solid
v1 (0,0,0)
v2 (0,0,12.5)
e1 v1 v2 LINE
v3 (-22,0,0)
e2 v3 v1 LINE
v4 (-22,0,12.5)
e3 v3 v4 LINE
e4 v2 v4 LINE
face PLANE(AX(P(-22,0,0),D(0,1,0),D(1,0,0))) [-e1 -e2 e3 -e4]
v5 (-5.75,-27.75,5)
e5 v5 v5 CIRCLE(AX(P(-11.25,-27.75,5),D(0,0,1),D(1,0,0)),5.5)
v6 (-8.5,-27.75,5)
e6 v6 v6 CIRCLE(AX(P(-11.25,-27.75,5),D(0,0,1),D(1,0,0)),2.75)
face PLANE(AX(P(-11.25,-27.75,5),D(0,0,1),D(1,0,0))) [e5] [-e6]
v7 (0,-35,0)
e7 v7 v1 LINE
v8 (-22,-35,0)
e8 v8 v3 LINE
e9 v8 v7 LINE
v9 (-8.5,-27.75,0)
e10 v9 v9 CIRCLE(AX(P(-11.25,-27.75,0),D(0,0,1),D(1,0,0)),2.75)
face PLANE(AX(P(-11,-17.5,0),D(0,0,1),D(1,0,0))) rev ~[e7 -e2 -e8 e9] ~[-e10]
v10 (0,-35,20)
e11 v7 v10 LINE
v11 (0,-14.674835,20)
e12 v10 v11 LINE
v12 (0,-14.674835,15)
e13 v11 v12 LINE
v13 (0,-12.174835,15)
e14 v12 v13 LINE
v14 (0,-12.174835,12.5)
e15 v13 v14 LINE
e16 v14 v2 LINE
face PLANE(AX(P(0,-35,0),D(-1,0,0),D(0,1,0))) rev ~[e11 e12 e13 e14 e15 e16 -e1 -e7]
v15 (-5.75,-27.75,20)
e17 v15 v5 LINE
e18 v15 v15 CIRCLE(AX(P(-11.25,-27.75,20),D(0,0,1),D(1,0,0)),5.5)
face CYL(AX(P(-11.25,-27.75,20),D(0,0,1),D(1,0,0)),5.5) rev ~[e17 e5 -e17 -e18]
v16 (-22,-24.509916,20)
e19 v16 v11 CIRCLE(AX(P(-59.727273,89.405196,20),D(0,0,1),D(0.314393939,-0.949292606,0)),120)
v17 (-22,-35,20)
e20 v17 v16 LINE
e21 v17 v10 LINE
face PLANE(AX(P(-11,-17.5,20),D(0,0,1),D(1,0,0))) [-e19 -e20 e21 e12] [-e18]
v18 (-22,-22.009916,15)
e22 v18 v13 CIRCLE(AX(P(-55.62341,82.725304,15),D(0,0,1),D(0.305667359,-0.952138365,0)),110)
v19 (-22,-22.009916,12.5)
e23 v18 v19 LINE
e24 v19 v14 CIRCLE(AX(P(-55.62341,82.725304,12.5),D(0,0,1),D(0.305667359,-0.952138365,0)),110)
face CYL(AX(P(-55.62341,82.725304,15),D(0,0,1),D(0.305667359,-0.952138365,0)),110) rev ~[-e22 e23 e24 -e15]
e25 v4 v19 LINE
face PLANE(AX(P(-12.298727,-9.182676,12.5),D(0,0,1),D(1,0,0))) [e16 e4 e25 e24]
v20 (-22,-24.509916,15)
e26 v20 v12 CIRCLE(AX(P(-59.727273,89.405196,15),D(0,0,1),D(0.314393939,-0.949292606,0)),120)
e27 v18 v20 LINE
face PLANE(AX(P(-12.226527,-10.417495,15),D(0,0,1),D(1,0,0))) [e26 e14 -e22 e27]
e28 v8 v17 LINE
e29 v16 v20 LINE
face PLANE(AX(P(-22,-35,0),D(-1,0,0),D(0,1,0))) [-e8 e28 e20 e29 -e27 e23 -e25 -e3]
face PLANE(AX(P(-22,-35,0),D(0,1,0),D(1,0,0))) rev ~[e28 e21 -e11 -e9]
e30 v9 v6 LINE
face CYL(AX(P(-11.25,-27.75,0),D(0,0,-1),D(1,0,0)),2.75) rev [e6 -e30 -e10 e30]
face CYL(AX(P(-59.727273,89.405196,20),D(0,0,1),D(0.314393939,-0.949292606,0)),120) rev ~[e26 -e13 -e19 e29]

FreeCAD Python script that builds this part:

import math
import FreeCAD as App
import Part
import Sketcher
from FreeCAD import Vector
Q = App.Units.Quantity


def add_polygon(sketch, points):
    """Adds a closed chain of lines whose ends are joined by coincident constraints."""
    first, n = sketch.GeometryCount, len(points)
    for a, b in zip(points, points[1:] + points[:1]):
        sketch.addGeometry(Part.LineSegment(App.Vector(*a, 0), App.Vector(*b, 0)), False)
    for i in range(n):
        sketch.addConstraint(Sketcher.Constraint("Coincident", first + i, 2, first + (i + 1) % n, 1))

doc = App.newDocument("Part")
body = doc.addObject("PartDesign::Body", "Body")

# Sketch on XY plane
sketch1 = doc.addObject("Sketcher::SketchObject", "Sketch")
body.addObject(sketch1)
sketch1.AttachmentSupport = (doc.XY_Plane, [""])
sketch1.MapMode = "FlatFace"
add_polygon(sketch1, [(-22, 0), (-22, -35), (0, -35), (0, 0)])  # lines 0-3
sketch1.addGeometry(Part.Circle(Vector(-11.2, -27.8, 0), Vector(0, 0, 1), 2.8), False)  # 4
sketch1.addConstraint([
    Sketcher.Constraint("Vertical", 0),
    Sketcher.Constraint("Horizontal", 1),
    Sketcher.Constraint("Vertical", 2),
    Sketcher.Constraint("Horizontal", 3),
    Sketcher.Constraint("Coincident", 2, 2, -1, 1),
    Sketcher.Constraint("Diameter", 4, Q("5.5 mm")),
    Sketcher.Constraint("DistanceX", 1, 1, 1, 2, Q("22 mm")),
    Sketcher.Constraint("DistanceY", 0, 2, 0, 1, Q("35 mm")),
    Sketcher.Constraint("DistanceX", 4, 3, -1, 1, Q("11.25 mm")),
    Sketcher.Constraint("DistanceY", 4, 3, -1, 1, Q("27.75 mm")),
])
pad1 = doc.addObject("PartDesign::Pad", "Pad")
body.addObject(pad1)
pad1.Profile = sketch1
pad1.Length = 20

# Sketch on XY plane
sketch2 = doc.addObject("Sketcher::SketchObject", "Sketch001")
body.addObject(sketch2)
sketch2.AttachmentSupport = (doc.XY_Plane, [""])
sketch2.MapMode = "FlatFace"
sketch2.AttachmentOffset = App.Placement(Vector(0, 0, 20), App.Rotation())
sketch2.addGeometry([
    Part.Circle(Vector(-11.2, -27.8, 0), Vector(0, 0, 1), 5.5),
    Part.Circle(Vector(-11.2, -27.8, 0), Vector(0, 0, 1), 2.8),
], False)
sketch2.addConstraint([
    Sketcher.Constraint("Coincident", 1, 3, 0, 3),
    Sketcher.Constraint("Diameter", 0, Q("11 mm")),
    Sketcher.Constraint("Diameter", 1, Q("5.5 mm")),
    Sketcher.Constraint("DistanceX", 0, 3, -1, 1, Q("11.25 mm")),
    Sketcher.Constraint("DistanceY", 0, 3, -1, 1, Q("27.75 mm")),
])
pocket1 = doc.addObject("PartDesign::Pocket", "Pocket")
body.addObject(pocket1)
pocket1.Profile = sketch2
pocket1.Length = 15

# Sketch on XY plane
sketch3 = doc.addObject("Sketcher::SketchObject", "Sketch002")
body.addObject(sketch3)
sketch3.AttachmentSupport = (doc.XY_Plane, [""])
sketch3.MapMode = "FlatFace"
sketch3.AttachmentOffset = App.Placement(Vector(0, 0, 20), App.Rotation())
sketch3.addGeometry([
    Part.LineSegment(Vector(0, 0, 0), Vector(-22, 0, 0)),
    Part.LineSegment(Vector(-22, 0, 0), Vector(-22, -25, 0)),
    Part.ArcOfCircle(Part.Circle(Vector(-60, 89, 0), Vector(0, 0, 1), 120), math.radians(-71.68), math.radians(-60.15)),
    Part.LineSegment(Vector(0, -15, 0), Vector(0, 0, 0)),
], False)
sketch3.addConstraint([
    Sketcher.Constraint("Coincident", 0, 2, 1, 1),
    Sketcher.Constraint("Coincident", 1, 2, 2, 1),
    Sketcher.Constraint("Coincident", 2, 2, 3, 1),
    Sketcher.Constraint("Coincident", 3, 2, 0, 1),
    Sketcher.Constraint("Horizontal", 0),
    Sketcher.Constraint("Vertical", 1),
    Sketcher.Constraint("Vertical", 3),
    Sketcher.Constraint("Coincident", 3, 2, -1, 1),
    Sketcher.Constraint("Radius", 2, Q("120 mm")),
    Sketcher.Constraint("DistanceX", 0, 2, 0, 1, Q("22 mm")),
    Sketcher.Constraint("DistanceY", 1, 2, 1, 1, Q("24.509916 mm")),
    Sketcher.Constraint("DistanceY", 3, 1, 3, 2, Q("14.674835 mm")),
])
pocket2 = doc.addObject("PartDesign::Pocket", "Pocket001")
body.addObject(pocket2)
pocket2.Profile = sketch3
pocket2.Length = 5

# Sketch on XY plane
sketch4 = doc.addObject("Sketcher::SketchObject", "Sketch003")
body.addObject(sketch4)
sketch4.AttachmentSupport = (doc.XY_Plane, [""])
sketch4.MapMode = "FlatFace"
sketch4.AttachmentOffset = App.Placement(Vector(0, 0, 15), App.Rotation())
sketch4.addGeometry([
    Part.LineSegment(Vector(0, 0, 0), Vector(-22, 0, 0)),
    Part.LineSegment(Vector(-22, 0, 0), Vector(-22, -22, 0)),
    Part.ArcOfCircle(Part.Circle(Vector(-56, 83, 0), Vector(0, 0, 1), 110), math.radians(-72.2), math.radians(-59.62)),
    Part.LineSegment(Vector(0, -12, 0), Vector(0, 0, 0)),
], False)
sketch4.addConstraint([
    Sketcher.Constraint("Coincident", 0, 2, 1, 1),
    Sketcher.Constraint("Coincident", 1, 2, 2, 1),
    Sketcher.Constraint("Coincident", 2, 2, 3, 1),
    Sketcher.Constraint("Coincident", 3, 2, 0, 1),
    Sketcher.Constraint("Horizontal", 0),
    Sketcher.Constraint("Vertical", 1),
    Sketcher.Constraint("Vertical", 3),
    Sketcher.Constraint("Coincident", 3, 2, -1, 1),
    Sketcher.Constraint("Radius", 2, Q("110 mm")),
    Sketcher.Constraint("DistanceX", 0, 2, 0, 1, Q("22 mm")),
    Sketcher.Constraint("DistanceY", 1, 2, 1, 1, Q("22.009916 mm")),
    Sketcher.Constraint("DistanceY", 3, 1, 3, 2, Q("12.174835 mm")),
])
pocket3 = doc.addObject("PartDesign::Pocket", "Pocket002")
body.addObject(pocket3)
pocket3.Profile = sketch4
pocket3.Length = 2.5

doc.recompute()
